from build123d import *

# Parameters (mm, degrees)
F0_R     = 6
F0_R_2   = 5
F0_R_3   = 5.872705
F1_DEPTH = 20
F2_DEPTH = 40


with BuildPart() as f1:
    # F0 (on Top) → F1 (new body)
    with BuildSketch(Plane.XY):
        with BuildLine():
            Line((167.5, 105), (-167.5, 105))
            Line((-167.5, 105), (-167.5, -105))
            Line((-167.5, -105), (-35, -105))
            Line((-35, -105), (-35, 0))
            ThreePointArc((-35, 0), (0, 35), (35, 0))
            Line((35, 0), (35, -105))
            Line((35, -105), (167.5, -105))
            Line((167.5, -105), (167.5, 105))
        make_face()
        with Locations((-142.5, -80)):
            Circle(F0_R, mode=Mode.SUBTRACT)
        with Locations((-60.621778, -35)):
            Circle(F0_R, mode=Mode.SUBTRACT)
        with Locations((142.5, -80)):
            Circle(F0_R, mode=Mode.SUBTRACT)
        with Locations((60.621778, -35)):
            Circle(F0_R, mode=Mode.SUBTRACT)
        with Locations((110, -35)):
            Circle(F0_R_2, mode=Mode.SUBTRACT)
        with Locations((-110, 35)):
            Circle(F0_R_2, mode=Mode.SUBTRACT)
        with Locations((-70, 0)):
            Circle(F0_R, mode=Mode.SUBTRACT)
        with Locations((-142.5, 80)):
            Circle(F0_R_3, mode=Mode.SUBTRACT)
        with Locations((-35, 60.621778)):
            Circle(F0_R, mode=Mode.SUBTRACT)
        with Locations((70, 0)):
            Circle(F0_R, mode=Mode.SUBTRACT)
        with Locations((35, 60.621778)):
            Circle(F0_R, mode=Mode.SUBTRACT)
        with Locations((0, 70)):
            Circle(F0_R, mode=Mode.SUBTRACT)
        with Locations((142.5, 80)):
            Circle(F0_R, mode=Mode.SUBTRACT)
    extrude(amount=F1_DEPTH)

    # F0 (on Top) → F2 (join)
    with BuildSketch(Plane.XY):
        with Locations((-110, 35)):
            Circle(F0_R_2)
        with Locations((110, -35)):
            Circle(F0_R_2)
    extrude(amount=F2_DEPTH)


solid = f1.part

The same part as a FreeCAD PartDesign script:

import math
import FreeCAD as App
import Part
import Sketcher
from FreeCAD import Vector
Q = App.Units.Quantity

doc = App.newDocument("Part")
body = doc.addObject("PartDesign::Body", "Body")

# Sketch on XY plane
sketch1 = body.newObject("Sketcher::SketchObject", "Sketch")
sketch1.AttachmentSupport = (doc.getObject("XY_Plane"), [""])
sketch1.MapMode = "FlatFace"
sketch1.addGeometry(Part.LineSegment(Vector(167.5, 105, 0), Vector(-167.5, 105, 0)), False)
sketch1.addGeometry(Part.LineSegment(Vector(-167.5, 105, 0), Vector(-167.5, -105, 0)), False)
sketch1.addGeometry(Part.LineSegment(Vector(-167.5, -105, 0), Vector(-35, -105, 0)), False)
sketch1.addGeometry(Part.LineSegment(Vector(-35, -105, 0), Vector(-35, 0, 0)), False)
sketch1.addGeometry(Part.ArcOfCircle(Part.Circle(Vector(0, 0, 0), Vector(0, 0, 1), 35), math.radians(0), math.radians(180)), False)
sketch1.addGeometry(Part.LineSegment(Vector(35, 0, 0), Vector(35, -105, 0)), False)
sketch1.addGeometry(Part.LineSegment(Vector(35, -105, 0), Vector(167.5, -105, 0)), False)
sketch1.addGeometry(Part.LineSegment(Vector(167.5, -105, 0), Vector(167.5, 105, 0)), False)
sketch1.addGeometry(Part.Circle(Vector(-142.5, -80, 0), Vector(0, 0, 1), 6), False)
sketch1.addGeometry(Part.Circle(Vector(-60.621778, -35, 0), Vector(0, 0, 1), 6), False)
sketch1.addGeometry(Part.Circle(Vector(142.5, -80, 0), Vector(0, 0, 1), 6), False)
sketch1.addGeometry(Part.Circle(Vector(60.621778, -35, 0), Vector(0, 0, 1), 6), False)
sketch1.addGeometry(Part.Circle(Vector(110, -35, 0), Vector(0, 0, 1), 5), False)
sketch1.addGeometry(Part.Circle(Vector(-110, 35, 0), Vector(0, 0, 1), 5), False)
sketch1.addGeometry(Part.Circle(Vector(-70, 0, 0), Vector(0, 0, 1), 6), False)
sketch1.addGeometry(Part.Circle(Vector(-142.5, 80, 0), Vector(0, 0, 1), 5.872705), False)
sketch1.addGeometry(Part.Circle(Vector(-35, 60.621778, 0), Vector(0, 0, 1), 6), False)
sketch1.addGeometry(Part.Circle(Vector(70, 0, 0), Vector(0, 0, 1), 6), False)
sketch1.addGeometry(Part.Circle(Vector(35, 60.621778, 0), Vector(0, 0, 1), 6), False)
sketch1.addGeometry(Part.Circle(Vector(0, 70, 0), Vector(0, 0, 1), 6), False)
sketch1.addGeometry(Part.Circle(Vector(142.5, 80, 0), Vector(0, 0, 1), 6), False)
sketch1.addConstraint(Sketcher.Constraint("Coincident", 0, 2, 1, 1))
sketch1.addConstraint(Sketcher.Constraint("Coincident", 1, 2, 2, 1))
sketch1.addConstraint(Sketcher.Constraint("Coincident", 2, 2, 3, 1))
sketch1.addConstraint(Sketcher.Constraint("Tangent", 3, 2, 4, 2))
sketch1.addConstraint(Sketcher.Constraint("Tangent", 4, 1, 5, 1))
sketch1.addConstraint(Sketcher.Constraint("Coincident", 5, 2, 6, 1))
sketch1.addConstraint(Sketcher.Constraint("Coincident", 6, 2, 7, 1))
sketch1.addConstraint(Sketcher.Constraint("Coincident", 7, 2, 0, 1))
sketch1.addConstraint(Sketcher.Constraint("Horizontal", 0))
sketch1.addConstraint(Sketcher.Constraint("Vertical", 1))
sketch1.addConstraint(Sketcher.Constraint("Horizontal", 2))
sketch1.addConstraint(Sketcher.Constraint("Vertical", 3))
sketch1.addConstraint(Sketcher.Constraint("Vertical", 5))
sketch1.addConstraint(Sketcher.Constraint("Horizontal", 6))
sketch1.addConstraint(Sketcher.Constraint("Vertical", 7))
sketch1.addConstraint(Sketcher.Constraint("Coincident", 4, 3, -1, 1))
sketch1.addConstraint(Sketcher.Constraint("Equal", 8, 9))
sketch1.addConstraint(Sketcher.Constraint("Equal", 9, 10))
sketch1.addConstraint(Sketcher.Constraint("Equal", 10, 11))
sketch1.addConstraint(Sketcher.Constraint("Equal", 12, 13))
sketch1.addConstraint(Sketcher.Constraint("Equal", 11, 14))
sketch1.addConstraint(Sketcher.Constraint("Equal", 14, 16))
sketch1.addConstraint(Sketcher.Constraint("Equal", 16, 17))
sketch1.addConstraint(Sketcher.Constraint("Equal", 17, 18))
sketch1.addConstraint(Sketcher.Constraint("Equal", 18, 19))
sketch1.addConstraint(Sketcher.Constraint("Equal", 19, 20))
sketch1.addConstraint(Sketcher.Constraint("Symmetric", 12, 3, 13, 3, -1, 1))
sketch1.addConstraint(Sketcher.Constraint("Symmetric", 10, 3, 15, 3, -1, 1))
sketch1.addConstraint(Sketcher.Constraint("Symmetric", 14, 3, 17, 3, -1, 1))
sketch1.addConstraint(Sketcher.Constraint("Symmetric", 8, 3, 20, 3, -1, 1))
sketch1.addConstraint(Sketcher.Constraint("Symmetric", 0, 2, 6, 2, -1, 1))
sketch1.addConstraint(Sketcher.Constraint("Symmetric", 8, 3, 10, 3, -2))
sketch1.addConstraint(Sketcher.Constraint("Symmetric", 9, 3, 11, 3, -2))
sketch1.addConstraint(Sketcher.Constraint("Symmetric", 16, 3, 18, 3, -2))
sketch1.addConstraint(Sketcher.Constraint("PointOnObject", 14, 3, -1))
sketch1.addConstraint(Sketcher.Constraint("PointOnObject", 19, 3, -2))
sketch1.addConstraint(Sketcher.Constraint("Horizontal", 11, 3, 12, 3))
sketch1.addConstraint(Sketcher.Constraint("Horizontal", 2, 2, 5, 2))
sketch1.addConstraint(Sketcher.Constraint("Vertical", 16, 3, 2, 2))
sketch1.addConstraint(Sketcher.Constraint("Diameter", 8, Q("12 mm")))
sketch1.addConstraint(Sketcher.Constraint("Diameter", 12, Q("10 mm")))
sketch1.addConstraint(Sketcher.Constraint("Radius", 4, Q("35 mm")))
sketch1.addConstraint(Sketcher.Constraint("DistanceX", 0, 2, 0, 1, Q("335 mm")))
sketch1.addConstraint(Sketcher.Constraint("DistanceY", 1, 2, 1, 1, Q("210 mm")))
sketch1.addConstraint(Sketcher.Constraint("DistanceY", 8, 3, -1, 1, Q("80 mm")))
sketch1.addConstraint(Sketcher.Constraint("DistanceY", 9, 3, -1, 1, Q("35 mm")))
sketch1.addConstraint(Sketcher.Constraint("DistanceX", -1, 1, 12, 3, Q("110 mm")))
sketch1.addConstraint(Sketcher.Constraint("DistanceX", 14, 3, -1, 1, Q("70 mm")))
sketch1.addConstraint(Sketcher.Constraint("DistanceY", -1, 1, 19, 3, Q("70 mm")))
sketch1.addConstraint(Sketcher.Constraint("DistanceX", 8, 3, 10, 3, Q("285 mm")))
sketch1.addConstraint(Sketcher.Constraint("Diameter", 15, Q("11.74541 mm")))
sketch1.addConstraint(Sketcher.Constraint("DistanceX", 8, 3, 9, 3, Q("81.878222 mm")))
sketch1.addConstraint(Sketcher.Constraint("DistanceY", 9, 3, 16, 3, Q("95.621778 mm")))
pad1 = body.newObject("PartDesign::Pad", "Pad")
pad1.Profile = sketch1
pad1.Length = 20

# Sketch on XY plane
sketch2 = body.newObject("Sketcher::SketchObject", "Sketch001")
sketch2.AttachmentSupport = (doc.getObject("XY_Plane"), [""])
sketch2.MapMode = "FlatFace"
sketch2.addGeometry(Part.Circle(Vector(-110, 35, 0), Vector(0, 0, 1), 5), False)
sketch2.addGeometry(Part.Circle(Vector(110, -35, 0), Vector(0, 0, 1), 5), False)
sketch2.addConstraint(Sketcher.Constraint("Equal", 0, 1))
sketch2.addConstraint(Sketcher.Constraint("Symmetric", 0, 3, 1, 3, -1, 1))
sketch2.addConstraint(Sketcher.Constraint("Diameter", 0, Q("10 mm")))
sketch2.addConstraint(Sketcher.Constraint("DistanceX", 0, 3, -1, 1, Q("110 mm")))
sketch2.addConstraint(Sketcher.Constraint("DistanceY", -1, 1, 0, 3, Q("35 mm")))
pad2 = body.newObject("PartDesign::Pad", "Pad001")
pad2.Profile = sketch2
pad2.Length = 40

doc.recompute()
